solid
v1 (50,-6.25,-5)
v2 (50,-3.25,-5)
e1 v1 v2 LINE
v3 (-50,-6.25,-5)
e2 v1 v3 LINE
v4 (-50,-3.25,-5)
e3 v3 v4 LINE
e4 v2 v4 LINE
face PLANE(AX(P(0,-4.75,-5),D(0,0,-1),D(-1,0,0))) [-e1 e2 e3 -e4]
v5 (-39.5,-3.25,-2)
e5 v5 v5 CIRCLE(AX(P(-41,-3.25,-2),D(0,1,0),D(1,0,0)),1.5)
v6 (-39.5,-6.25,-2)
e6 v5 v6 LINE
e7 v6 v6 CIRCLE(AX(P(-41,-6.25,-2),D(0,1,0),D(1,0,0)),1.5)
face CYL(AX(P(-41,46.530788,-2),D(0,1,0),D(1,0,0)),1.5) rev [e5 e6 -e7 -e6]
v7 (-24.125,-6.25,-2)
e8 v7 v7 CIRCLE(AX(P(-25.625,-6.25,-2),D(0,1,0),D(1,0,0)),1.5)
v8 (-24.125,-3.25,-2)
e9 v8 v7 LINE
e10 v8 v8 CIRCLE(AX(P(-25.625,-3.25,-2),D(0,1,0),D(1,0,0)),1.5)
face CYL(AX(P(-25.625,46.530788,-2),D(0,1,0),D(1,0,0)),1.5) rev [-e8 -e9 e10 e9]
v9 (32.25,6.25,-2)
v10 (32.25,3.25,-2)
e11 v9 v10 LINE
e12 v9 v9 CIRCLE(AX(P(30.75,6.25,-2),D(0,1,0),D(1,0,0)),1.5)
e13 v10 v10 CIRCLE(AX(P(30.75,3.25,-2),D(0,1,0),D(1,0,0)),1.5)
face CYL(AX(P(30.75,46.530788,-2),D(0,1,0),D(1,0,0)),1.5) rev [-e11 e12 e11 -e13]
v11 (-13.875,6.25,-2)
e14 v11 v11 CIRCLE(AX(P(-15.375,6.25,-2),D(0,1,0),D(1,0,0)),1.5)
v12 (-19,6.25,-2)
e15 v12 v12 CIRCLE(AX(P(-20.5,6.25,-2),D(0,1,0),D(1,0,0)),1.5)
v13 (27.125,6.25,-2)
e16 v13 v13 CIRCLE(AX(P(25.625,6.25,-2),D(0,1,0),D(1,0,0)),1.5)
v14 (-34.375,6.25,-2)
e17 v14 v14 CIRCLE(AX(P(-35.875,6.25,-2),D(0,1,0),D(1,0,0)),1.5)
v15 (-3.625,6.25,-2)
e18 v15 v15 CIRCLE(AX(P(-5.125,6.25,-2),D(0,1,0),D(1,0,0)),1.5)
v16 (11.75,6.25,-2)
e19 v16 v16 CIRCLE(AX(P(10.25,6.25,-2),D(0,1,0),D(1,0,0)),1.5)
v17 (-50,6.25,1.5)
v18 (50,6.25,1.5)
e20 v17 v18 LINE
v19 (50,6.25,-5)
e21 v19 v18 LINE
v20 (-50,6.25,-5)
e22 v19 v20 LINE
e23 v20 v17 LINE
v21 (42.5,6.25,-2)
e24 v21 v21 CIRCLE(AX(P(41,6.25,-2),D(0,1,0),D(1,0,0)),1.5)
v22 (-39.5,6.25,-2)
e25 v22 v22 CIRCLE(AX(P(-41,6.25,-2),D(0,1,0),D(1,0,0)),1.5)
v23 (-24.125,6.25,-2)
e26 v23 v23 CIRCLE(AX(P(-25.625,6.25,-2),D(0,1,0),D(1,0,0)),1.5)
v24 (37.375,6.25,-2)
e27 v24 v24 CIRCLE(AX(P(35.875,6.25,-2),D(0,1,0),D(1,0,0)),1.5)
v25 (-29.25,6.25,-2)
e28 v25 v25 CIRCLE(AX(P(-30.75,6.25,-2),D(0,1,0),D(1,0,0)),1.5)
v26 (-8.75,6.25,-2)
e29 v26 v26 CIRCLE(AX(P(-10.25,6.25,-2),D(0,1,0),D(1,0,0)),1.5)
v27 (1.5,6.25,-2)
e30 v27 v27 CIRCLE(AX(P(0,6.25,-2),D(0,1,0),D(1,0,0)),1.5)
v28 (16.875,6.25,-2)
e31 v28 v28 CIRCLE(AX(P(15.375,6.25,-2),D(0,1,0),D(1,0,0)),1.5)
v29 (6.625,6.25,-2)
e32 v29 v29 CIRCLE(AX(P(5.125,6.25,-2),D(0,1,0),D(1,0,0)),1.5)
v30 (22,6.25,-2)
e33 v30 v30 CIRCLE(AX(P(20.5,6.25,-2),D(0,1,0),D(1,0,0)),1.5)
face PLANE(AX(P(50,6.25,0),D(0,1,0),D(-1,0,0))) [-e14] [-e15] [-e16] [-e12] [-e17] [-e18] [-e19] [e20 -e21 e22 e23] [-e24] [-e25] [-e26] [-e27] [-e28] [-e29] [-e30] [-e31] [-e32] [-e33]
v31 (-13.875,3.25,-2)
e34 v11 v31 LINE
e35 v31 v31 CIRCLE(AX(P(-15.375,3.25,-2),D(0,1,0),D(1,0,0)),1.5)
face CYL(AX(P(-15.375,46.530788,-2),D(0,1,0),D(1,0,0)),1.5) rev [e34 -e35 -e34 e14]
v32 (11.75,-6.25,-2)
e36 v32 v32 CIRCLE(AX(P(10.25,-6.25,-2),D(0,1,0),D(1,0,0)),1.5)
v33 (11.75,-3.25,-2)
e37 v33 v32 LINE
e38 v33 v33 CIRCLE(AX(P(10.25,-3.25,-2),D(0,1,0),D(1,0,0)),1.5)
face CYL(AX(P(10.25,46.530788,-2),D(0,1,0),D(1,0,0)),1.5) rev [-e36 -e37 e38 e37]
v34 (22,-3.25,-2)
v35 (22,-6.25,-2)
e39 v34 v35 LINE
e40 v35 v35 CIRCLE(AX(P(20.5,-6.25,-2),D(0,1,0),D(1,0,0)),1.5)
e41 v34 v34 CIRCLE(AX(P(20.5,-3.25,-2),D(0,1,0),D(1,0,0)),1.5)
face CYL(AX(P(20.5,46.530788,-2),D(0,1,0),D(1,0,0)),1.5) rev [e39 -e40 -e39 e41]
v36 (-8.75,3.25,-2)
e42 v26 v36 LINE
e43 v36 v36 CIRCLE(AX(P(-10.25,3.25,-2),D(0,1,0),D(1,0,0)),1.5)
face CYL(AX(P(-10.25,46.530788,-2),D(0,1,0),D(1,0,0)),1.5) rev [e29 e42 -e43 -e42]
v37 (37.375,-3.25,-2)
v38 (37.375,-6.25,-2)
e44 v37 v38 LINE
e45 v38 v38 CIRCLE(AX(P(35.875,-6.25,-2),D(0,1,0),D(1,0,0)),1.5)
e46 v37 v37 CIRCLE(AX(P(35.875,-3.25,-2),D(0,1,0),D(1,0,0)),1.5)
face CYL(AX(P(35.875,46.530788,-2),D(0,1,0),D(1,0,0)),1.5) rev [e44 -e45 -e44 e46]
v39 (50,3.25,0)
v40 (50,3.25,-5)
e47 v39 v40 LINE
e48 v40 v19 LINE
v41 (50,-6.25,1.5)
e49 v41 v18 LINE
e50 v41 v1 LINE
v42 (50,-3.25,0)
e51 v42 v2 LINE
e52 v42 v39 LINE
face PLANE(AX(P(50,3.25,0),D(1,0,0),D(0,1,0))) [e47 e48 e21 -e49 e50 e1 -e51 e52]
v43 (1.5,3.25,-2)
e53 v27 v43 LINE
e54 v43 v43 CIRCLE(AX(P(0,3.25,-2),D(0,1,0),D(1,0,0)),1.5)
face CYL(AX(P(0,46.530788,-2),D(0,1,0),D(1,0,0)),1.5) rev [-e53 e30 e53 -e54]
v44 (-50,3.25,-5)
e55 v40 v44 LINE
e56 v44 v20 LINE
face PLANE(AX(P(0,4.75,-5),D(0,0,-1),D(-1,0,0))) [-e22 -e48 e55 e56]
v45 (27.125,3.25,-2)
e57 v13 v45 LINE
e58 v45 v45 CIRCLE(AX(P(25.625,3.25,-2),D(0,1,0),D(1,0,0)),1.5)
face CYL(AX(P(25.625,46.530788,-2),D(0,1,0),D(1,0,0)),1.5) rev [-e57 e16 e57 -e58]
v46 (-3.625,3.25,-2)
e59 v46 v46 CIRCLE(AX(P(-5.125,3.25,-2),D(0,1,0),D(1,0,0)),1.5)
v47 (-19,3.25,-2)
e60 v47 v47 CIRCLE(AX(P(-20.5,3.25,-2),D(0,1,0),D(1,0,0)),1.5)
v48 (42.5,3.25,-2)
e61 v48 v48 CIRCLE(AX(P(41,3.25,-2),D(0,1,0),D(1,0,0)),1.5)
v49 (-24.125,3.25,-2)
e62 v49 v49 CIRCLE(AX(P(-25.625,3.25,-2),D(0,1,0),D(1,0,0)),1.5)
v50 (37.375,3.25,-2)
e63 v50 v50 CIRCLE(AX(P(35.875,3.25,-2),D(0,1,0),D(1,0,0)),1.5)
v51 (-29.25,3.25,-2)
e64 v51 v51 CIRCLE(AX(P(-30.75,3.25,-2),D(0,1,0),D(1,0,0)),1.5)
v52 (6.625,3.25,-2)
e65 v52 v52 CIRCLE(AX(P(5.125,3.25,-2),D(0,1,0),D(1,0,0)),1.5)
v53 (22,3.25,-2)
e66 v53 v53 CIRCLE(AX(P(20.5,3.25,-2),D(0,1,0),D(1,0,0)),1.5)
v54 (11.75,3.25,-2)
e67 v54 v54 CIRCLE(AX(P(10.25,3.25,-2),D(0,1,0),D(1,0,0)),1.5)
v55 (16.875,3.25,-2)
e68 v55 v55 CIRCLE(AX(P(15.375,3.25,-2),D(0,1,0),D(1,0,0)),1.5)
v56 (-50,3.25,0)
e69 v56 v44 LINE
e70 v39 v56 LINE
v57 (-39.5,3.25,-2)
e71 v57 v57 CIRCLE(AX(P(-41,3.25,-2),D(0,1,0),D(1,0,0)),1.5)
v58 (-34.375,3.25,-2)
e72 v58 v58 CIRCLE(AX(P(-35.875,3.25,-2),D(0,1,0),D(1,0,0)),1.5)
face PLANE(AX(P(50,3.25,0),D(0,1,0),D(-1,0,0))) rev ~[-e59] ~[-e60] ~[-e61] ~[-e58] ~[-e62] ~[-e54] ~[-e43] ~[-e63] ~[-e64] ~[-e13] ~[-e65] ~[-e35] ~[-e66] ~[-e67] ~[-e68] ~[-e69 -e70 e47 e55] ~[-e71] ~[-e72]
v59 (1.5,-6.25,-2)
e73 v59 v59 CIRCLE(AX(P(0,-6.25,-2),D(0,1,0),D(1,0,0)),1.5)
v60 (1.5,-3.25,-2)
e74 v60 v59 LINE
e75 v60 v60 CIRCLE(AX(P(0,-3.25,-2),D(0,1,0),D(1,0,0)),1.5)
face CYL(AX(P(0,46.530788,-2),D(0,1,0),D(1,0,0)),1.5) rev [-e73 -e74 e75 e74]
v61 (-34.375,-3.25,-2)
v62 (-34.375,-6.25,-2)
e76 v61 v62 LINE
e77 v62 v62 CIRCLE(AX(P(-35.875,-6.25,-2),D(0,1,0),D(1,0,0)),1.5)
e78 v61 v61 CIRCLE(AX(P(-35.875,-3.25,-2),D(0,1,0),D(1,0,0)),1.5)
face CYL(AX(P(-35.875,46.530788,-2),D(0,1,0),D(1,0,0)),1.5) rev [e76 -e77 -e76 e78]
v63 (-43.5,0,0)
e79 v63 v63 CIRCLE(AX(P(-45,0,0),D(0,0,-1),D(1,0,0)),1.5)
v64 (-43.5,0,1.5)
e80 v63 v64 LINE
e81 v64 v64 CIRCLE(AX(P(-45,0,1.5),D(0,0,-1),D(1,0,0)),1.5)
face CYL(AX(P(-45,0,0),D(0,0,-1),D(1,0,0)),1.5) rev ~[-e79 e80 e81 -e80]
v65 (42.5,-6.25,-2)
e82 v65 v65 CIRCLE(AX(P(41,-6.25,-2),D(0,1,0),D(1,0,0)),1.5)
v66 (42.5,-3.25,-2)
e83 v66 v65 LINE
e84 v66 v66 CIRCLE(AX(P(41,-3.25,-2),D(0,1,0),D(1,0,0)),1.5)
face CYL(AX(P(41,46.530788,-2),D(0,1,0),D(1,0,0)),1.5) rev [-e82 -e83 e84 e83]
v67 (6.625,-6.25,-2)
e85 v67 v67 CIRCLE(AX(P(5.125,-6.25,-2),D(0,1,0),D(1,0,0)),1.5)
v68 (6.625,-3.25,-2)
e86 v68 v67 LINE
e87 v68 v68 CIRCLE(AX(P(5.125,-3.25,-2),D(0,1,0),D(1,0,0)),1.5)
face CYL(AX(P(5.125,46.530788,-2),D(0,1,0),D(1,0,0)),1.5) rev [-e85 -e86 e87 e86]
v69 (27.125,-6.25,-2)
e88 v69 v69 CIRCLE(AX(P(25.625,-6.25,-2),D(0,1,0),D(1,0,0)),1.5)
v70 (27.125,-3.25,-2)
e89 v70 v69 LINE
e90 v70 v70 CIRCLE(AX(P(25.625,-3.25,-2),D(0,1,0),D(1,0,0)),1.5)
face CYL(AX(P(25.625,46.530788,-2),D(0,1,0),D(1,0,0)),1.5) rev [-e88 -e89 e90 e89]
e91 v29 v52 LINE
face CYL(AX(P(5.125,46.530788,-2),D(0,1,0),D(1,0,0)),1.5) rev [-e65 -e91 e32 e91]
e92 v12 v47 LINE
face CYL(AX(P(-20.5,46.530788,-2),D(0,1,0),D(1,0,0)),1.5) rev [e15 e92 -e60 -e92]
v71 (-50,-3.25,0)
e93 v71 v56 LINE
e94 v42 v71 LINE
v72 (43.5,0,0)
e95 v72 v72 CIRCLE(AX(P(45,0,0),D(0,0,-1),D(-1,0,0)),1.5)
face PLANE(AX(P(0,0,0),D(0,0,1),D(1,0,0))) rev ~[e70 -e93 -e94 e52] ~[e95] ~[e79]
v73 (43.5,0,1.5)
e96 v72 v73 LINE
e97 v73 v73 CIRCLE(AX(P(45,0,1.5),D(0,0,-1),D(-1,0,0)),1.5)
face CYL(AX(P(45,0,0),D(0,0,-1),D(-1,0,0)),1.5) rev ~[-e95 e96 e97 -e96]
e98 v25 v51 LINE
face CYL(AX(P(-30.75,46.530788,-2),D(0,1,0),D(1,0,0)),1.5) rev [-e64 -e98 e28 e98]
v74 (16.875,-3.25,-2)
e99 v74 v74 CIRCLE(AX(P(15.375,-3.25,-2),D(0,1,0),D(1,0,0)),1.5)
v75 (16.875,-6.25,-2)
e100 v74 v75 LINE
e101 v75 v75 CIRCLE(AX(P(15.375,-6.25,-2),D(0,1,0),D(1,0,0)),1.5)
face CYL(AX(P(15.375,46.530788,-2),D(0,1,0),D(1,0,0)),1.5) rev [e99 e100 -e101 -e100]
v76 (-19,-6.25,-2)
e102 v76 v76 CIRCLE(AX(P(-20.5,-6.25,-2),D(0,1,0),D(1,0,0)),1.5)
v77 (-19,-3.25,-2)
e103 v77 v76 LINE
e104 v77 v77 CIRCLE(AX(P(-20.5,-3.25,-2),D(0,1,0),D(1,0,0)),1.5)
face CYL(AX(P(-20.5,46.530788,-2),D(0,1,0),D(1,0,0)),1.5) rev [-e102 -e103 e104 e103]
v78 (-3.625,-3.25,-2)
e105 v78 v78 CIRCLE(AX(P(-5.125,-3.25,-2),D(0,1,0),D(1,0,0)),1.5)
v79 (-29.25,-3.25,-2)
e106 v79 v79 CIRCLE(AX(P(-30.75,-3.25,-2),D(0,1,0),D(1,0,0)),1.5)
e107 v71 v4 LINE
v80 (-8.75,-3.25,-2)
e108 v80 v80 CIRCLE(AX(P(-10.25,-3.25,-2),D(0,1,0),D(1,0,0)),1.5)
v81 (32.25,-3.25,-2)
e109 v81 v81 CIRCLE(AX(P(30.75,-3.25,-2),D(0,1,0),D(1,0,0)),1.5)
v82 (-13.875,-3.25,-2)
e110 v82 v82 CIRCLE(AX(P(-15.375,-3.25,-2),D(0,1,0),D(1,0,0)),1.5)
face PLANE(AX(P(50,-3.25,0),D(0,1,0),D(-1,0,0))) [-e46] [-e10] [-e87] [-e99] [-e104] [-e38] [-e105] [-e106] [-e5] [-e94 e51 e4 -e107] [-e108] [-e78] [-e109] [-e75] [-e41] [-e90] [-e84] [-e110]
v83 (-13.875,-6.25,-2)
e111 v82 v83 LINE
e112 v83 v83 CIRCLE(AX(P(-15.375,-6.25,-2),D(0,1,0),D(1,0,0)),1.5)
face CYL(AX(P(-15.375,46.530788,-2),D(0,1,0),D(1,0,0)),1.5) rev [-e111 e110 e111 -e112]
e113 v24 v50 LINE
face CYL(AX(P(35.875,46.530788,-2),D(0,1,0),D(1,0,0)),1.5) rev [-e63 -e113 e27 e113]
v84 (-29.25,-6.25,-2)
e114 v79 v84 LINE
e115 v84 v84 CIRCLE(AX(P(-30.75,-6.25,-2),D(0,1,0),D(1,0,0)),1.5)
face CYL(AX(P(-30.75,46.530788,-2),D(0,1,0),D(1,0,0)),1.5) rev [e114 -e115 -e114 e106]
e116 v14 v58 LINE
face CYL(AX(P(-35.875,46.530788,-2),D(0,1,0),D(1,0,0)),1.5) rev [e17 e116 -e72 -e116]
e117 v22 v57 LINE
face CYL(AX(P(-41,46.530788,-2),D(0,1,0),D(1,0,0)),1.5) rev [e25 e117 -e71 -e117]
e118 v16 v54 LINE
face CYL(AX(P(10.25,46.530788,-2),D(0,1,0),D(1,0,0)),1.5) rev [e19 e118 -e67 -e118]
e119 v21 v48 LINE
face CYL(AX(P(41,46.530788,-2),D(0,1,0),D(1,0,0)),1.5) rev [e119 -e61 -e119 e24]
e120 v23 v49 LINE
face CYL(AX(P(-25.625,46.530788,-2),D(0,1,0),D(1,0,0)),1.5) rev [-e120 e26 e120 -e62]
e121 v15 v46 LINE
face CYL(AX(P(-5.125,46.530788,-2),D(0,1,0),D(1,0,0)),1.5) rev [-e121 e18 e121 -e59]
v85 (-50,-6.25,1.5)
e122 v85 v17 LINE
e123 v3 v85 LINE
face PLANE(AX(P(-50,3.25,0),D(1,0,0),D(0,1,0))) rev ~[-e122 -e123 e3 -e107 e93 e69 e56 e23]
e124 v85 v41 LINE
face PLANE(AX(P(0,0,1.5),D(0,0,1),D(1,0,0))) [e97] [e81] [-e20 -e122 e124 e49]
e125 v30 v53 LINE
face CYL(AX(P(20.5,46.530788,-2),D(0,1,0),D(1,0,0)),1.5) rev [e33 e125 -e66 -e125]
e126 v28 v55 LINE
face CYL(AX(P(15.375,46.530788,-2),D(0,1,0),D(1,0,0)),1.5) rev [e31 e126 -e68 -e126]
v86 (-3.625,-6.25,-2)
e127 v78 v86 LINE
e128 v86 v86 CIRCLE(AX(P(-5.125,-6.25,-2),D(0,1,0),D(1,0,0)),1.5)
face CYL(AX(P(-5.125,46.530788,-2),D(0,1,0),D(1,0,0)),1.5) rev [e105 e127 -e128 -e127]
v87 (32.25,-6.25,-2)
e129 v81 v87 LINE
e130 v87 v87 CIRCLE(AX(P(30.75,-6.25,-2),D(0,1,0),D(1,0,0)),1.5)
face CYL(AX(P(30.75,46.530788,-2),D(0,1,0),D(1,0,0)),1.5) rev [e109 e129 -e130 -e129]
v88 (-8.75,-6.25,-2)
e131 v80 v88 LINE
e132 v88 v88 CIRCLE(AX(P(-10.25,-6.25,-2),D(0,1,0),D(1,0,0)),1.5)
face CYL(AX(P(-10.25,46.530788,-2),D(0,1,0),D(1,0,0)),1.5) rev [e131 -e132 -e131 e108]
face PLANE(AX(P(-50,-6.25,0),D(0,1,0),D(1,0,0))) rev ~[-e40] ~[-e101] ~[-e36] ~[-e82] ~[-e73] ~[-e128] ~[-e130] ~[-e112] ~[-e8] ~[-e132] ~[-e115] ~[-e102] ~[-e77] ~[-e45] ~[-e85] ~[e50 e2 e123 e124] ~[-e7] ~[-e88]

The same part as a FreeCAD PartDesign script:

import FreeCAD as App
import Part
import Sketcher
from FreeCAD import Vector


def add_polygon(sketch, points):
    """Adds a closed chain of lines whose ends are joined by coincident constraints."""
    first, n = sketch.GeometryCount, len(points)
    for a, b in zip(points, points[1:] + points[:1]):
        sketch.addGeometry(Part.LineSegment(App.Vector(*a, 0), App.Vector(*b, 0)), False)
    for i in range(n):
        sketch.addConstraint(Sketcher.Constraint("Coincident", first + i, 2, first + (i + 1) % n, 1))

doc = App.newDocument("Part")
body = doc.addObject("PartDesign::Body", "Body")

sketch1 = doc.addObject("Sketcher::SketchObject", "Sketch")
body.addObject(sketch1)
sketch1.AttachmentSupport = (doc.XY_Plane, [""])
sketch1.MapMode = "FlatFace"
add_polygon(sketch1, [(-50, 6), (-50, -6), (50, -6), (50, 6)])
sketch1.addConstraint(Sketcher.Constraint("Vertical", 0))
sketch1.addConstraint(Sketcher.Constraint("Horizontal", 1))
sketch1.addConstraint(Sketcher.Constraint("Vertical", 2))
sketch1.addConstraint(Sketcher.Constraint("Horizontal", 3))
sketch1.addConstraint(Sketcher.Constraint("Symmetric", 0, 2, 2, 2, -1, 1))
sketch1.addConstraint(Sketcher.Constraint("DistanceX", 1, 1, 1, 2, 100.0))
sketch1.addConstraint(Sketcher.Constraint("DistanceY", 0, 2, 0, 1, 12.5))
pad1 = doc.addObject("PartDesign::Pad", "Pad")
body.addObject(pad1)
pad1.Profile = sketch1
pad1.Length = 1.5

sketch2 = doc.addObject("Sketcher::SketchObject", "Sketch001")
body.addObject(sketch2)
sketch2.AttachmentSupport = (doc.XY_Plane, [""])
sketch2.MapMode = "FlatFace"
add_polygon(sketch2, [(50, 6.2), (50, 3.2), (-50, 3.2), (-50, 6.2)])
add_polygon(sketch2, [(50, -3.2), (50, -6.2), (-50, -6.2), (-50, -3.2)])
sketch2.addConstraint(Sketcher.Constraint("Vertical", 0))
sketch2.addConstraint(Sketcher.Constraint("Horizontal", 1))
sketch2.addConstraint(Sketcher.Constraint("Vertical", 2))
sketch2.addConstraint(Sketcher.Constraint("Horizontal", 3))
sketch2.addConstraint(Sketcher.Constraint("Vertical", 4))
sketch2.addConstraint(Sketcher.Constraint("Horizontal", 5))
sketch2.addConstraint(Sketcher.Constraint("Vertical", 6))
sketch2.addConstraint(Sketcher.Constraint("Horizontal", 7))
sketch2.addConstraint(Sketcher.Constraint("Symmetric", 2, 2, 4, 2, -1, 1))
sketch2.addConstraint(Sketcher.Constraint("Symmetric", 0, 2, 6, 2, -1, 1))
sketch2.addConstraint(Sketcher.Constraint("Vertical", 3, 2, 4, 2))
sketch2.addConstraint(Sketcher.Constraint("DistanceX", 1, 2, 1, 1, 100.0))
sketch2.addConstraint(Sketcher.Constraint("DistanceY", 0, 2, 0, 1, 3.0))
sketch2.addConstraint(Sketcher.Constraint("DistanceY", 4, 2, 0, 2, 9.5))
pad2 = doc.addObject("PartDesign::Pad", "Pad001")
body.addObject(pad2)
pad2.Profile = sketch2
pad2.Length = 5
pad2.Reversed = True

sketch3 = doc.addObject("Sketcher::SketchObject", "Sketch002")
body.addObject(sketch3)
sketch3.AttachmentSupport = (doc.XZ_Plane, [""])
sketch3.MapMode = "FlatFace"
sketch3.AttachmentOffset = App.Placement(Vector(0, 0, 6.25), App.Rotation())
sketch3.addGeometry(Part.Circle(Vector(41, -2, 0), Vector(0, 0, 1), 1.5), False)
sketch3.addGeometry(Part.Circle(Vector(35.9, -2, 0), Vector(0, 0, 1), 1.5), False)
sketch3.addGeometry(Part.Circle(Vector(30.8, -2, 0), Vector(0, 0, 1), 1.5), False)
sketch3.addGeometry(Part.Circle(Vector(25.6, -2, 0), Vector(0, 0, 1), 1.5), False)
sketch3.addGeometry(Part.Circle(Vector(20.5, -2, 0), Vector(0, 0, 1), 1.5), False)
sketch3.addGeometry(Part.Circle(Vector(15.4, -2, 0), Vector(0, 0, 1), 1.5), False)
sketch3.addGeometry(Part.Circle(Vector(10.2, -2, 0), Vector(0, 0, 1), 1.5), False)
sketch3.addGeometry(Part.Circle(Vector(5.1, -2, 0), Vector(0, 0, 1), 1.5), False)
sketch3.addGeometry(Part.Circle(Vector(0, -2, 0), Vector(0, 0, 1), 1.5), False)
sketch3.addGeometry(Part.Circle(Vector(-5.1, -2, 0), Vector(0, 0, 1), 1.5), False)
sketch3.addGeometry(Part.Circle(Vector(-10.2, -2, 0), Vector(0, 0, 1), 1.5), False)
sketch3.addGeometry(Part.Circle(Vector(-15.4, -2, 0), Vector(0, 0, 1), 1.5), False)
sketch3.addGeometry(Part.Circle(Vector(-20.5, -2, 0), Vector(0, 0, 1), 1.5), False)
sketch3.addGeometry(Part.Circle(Vector(-25.6, -2, 0), Vector(0, 0, 1), 1.5), False)
sketch3.addGeometry(Part.Circle(Vector(-30.8, -2, 0), Vector(0, 0, 1), 1.5), False)
sketch3.addGeometry(Part.Circle(Vector(-35.9, -2, 0), Vector(0, 0, 1), 1.5), False)
sketch3.addGeometry(Part.Circle(Vector(-41, -2, 0), Vector(0, 0, 1), 1.5), False)
sketch3.addConstraint(Sketcher.Constraint("Equal", 0, 1))
sketch3.addConstraint(Sketcher.Constraint("Equal", 1, 2))
sketch3.addConstraint(Sketcher.Constraint("Equal", 2, 3))
sketch3.addConstraint(Sketcher.Constraint("Equal", 3, 4))
sketch3.addConstraint(Sketcher.Constraint("Equal", 4, 5))
sketch3.addConstraint(Sketcher.Constraint("Equal", 5, 6))
sketch3.addConstraint(Sketcher.Constraint("Equal", 6, 7))
sketch3.addConstraint(Sketcher.Constraint("Equal", 7, 8))
sketch3.addConstraint(Sketcher.Constraint("Equal", 8, 9))
sketch3.addConstraint(Sketcher.Constraint("Equal", 9, 10))
sketch3.addConstraint(Sketcher.Constraint("Equal", 10, 11))
sketch3.addConstraint(Sketcher.Constraint("Equal", 11, 12))
sketch3.addConstraint(Sketcher.Constraint("Equal", 12, 13))
sketch3.addConstraint(Sketcher.Constraint("Equal", 13, 14))
sketch3.addConstraint(Sketcher.Constraint("Equal", 14, 15))
sketch3.addConstraint(Sketcher.Constraint("Equal", 15, 16))
sketch3.addConstraint(Sketcher.Constraint("Symmetric", 7, 3, 9, 3, -2))
sketch3.addConstraint(Sketcher.Constraint("Symmetric", 6, 3, 10, 3, -2))
sketch3.addConstraint(Sketcher.Constraint("Symmetric", 5, 3, 11, 3, -2))
sketch3.addConstraint(Sketcher.Constraint("Symmetric", 4, 3, 12, 3, -2))
sketch3.addConstraint(Sketcher.Constraint("Symmetric", 3, 3, 13, 3, -2))
sketch3.addConstraint(Sketcher.Constraint("Symmetric", 2, 3, 14, 3, -2))
sketch3.addConstraint(Sketcher.Constraint("Symmetric", 1, 3, 15, 3, -2))
sketch3.addConstraint(Sketcher.Constraint("Symmetric", 0, 3, 16, 3, -2))
sketch3.addConstraint(Sketcher.Constraint("PointOnObject", 8, 3, -2))
sketch3.addConstraint(Sketcher.Constraint("Horizontal", 0, 3, 1, 3))
sketch3.addConstraint(Sketcher.Constraint("Horizontal", 1, 3, 2, 3))
sketch3.addConstraint(Sketcher.Constraint("Horizontal", 2, 3, 3, 3))
sketch3.addConstraint(Sketcher.Constraint("Horizontal", 3, 3, 4, 3))
sketch3.addConstraint(Sketcher.Constraint("Horizontal", 4, 3, 5, 3))
sketch3.addConstraint(Sketcher.Constraint("Horizontal", 5, 3, 6, 3))
sketch3.addConstraint(Sketcher.Constraint("Horizontal", 6, 3, 7, 3))
sketch3.addConstraint(Sketcher.Constraint("Horizontal", 7, 3, 8, 3))
sketch3.addConstraint(Sketcher.Constraint("Diameter", 0, 3.0))
sketch3.addConstraint(Sketcher.Constraint("DistanceX", -1, 1, 0, 3, 41.0))
sketch3.addConstraint(Sketcher.Constraint("DistanceY", 0, 3, -1, 1, 2.0))
sketch3.addConstraint(Sketcher.Constraint("DistanceX", -1, 1, 4, 3, 20.5))
sketch3.addConstraint(Sketcher.Constraint("DistanceX", 5, 3, 1, 3, 20.5))
sketch3.addConstraint(Sketcher.Constraint("DistanceX", 6, 3, 2, 3, 20.5))
sketch3.addConstraint(Sketcher.Constraint("DistanceX", 7, 3, 3, 3, 20.5))
sketch3.addConstraint(Sketcher.Constraint("DistanceX", 9, 3, 5, 3, 20.5))
sketch3.addConstraint(Sketcher.Constraint("DistanceX", 10, 3, 6, 3, 20.5))
sketch3.addConstraint(Sketcher.Constraint("DistanceX", 3, 3, 1, 3, 10.25))
pocket1 = doc.addObject("PartDesign::Pocket", "Pocket")
body.addObject(pocket1)
pocket1.Profile = sketch3
pocket1.Type = "ThroughAll"
pocket1.Midplane = True

sketch4 = doc.addObject("Sketcher::SketchObject", "Sketch003")
body.addObject(sketch4)
sketch4.AttachmentSupport = (doc.XY_Plane, [""])
sketch4.MapMode = "FlatFace"
sketch4.addGeometry(Part.Circle(Vector(45, 0, 0), Vector(0, 0, 1), 1.5), False)
sketch4.addGeometry(Part.Circle(Vector(-45, 0, 0), Vector(0, 0, 1), 1.5), False)
sketch4.addConstraint(Sketcher.Constraint("Equal", 0, 1))
sketch4.addConstraint(Sketcher.Constraint("Symmetric", 0, 3, 1, 3, -1, 1))
sketch4.addConstraint(Sketcher.Constraint("PointOnObject", 0, 3, -1))
sketch4.addConstraint(Sketcher.Constraint("Diameter", 0, 3.0))
sketch4.addConstraint(Sketcher.Constraint("DistanceX", -1, 1, 0, 3, 45.0))
pocket2 = doc.addObject("PartDesign::Pocket", "Pocket001")
body.addObject(pocket2)
pocket2.Profile = sketch4
pocket2.Type = "ThroughAll"
pocket2.Reversed = True

doc.recompute()
